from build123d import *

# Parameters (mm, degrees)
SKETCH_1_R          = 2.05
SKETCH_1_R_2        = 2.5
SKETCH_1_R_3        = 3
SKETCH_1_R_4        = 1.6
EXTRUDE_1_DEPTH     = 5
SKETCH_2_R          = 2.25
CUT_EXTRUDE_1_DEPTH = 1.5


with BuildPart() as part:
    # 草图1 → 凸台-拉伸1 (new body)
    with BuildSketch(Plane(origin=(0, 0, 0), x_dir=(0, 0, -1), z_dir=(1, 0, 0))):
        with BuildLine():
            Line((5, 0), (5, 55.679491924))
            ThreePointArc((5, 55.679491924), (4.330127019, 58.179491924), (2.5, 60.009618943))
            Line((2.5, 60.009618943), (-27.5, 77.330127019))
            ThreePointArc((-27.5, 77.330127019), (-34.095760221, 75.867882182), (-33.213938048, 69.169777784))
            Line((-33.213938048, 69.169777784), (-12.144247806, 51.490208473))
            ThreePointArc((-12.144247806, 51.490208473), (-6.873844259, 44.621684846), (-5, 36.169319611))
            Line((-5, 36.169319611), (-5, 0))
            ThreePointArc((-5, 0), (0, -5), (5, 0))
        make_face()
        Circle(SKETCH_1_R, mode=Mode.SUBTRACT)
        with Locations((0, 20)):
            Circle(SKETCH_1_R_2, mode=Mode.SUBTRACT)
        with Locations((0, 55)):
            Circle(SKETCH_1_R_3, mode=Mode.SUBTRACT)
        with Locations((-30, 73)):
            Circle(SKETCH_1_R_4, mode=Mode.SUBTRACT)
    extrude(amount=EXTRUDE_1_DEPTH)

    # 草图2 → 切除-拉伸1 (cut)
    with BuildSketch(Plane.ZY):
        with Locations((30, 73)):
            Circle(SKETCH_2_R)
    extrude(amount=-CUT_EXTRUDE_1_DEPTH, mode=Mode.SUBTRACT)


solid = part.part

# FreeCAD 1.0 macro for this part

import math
import FreeCAD as App
import Part
import Sketcher
from FreeCAD import Vector
Q = App.Units.Quantity

doc = App.newDocument("Part")
params = doc.addObject("Spreadsheet::Sheet", "Params")
for row, (alias, value) in enumerate([
    ("sketch1_diameter", "5 mm"),
    ("sketch1_diameter2", "6 mm"),
    ("sketch1_radius", "5 mm"),
    ("sketch1_radius2", "20 mm"),
    ("sketch1_diameter3", "4.1 mm"),
    ("pad1_length", "5 mm"),
    ("sketch2_diameter", "4.5 mm"),
    ("pocket1_length", "1.5 mm"),
], start=1):
    params.set(f"A{row}", alias)
    params.set(f"B{row}", "=" + value)
    params.setAlias(f"B{row}", alias)

body = doc.addObject("PartDesign::Body", "Body")

# Sketch on YZ plane
sketch1 = doc.addObject("Sketcher::SketchObject", "Sketch")
body.addObject(sketch1)
sketch1.AttachmentSupport = (doc.YZ_Plane, [""])
sketch1.MapMode = "FlatFace"
sketch1.addGeometry(Part.LineSegment(Vector(0, -5, 0), Vector(55.679492, -5, 0)), False)
sketch1.addGeometry(Part.ArcOfCircle(Part.Circle(Vector(55.679492, 0, 0), Vector(0, 0, 1), 5), math.radians(-90), math.radians(-30)), False)
sketch1.addGeometry(Part.LineSegment(Vector(60.009619, -2.5, 0), Vector(77.330127, 27.5, 0)), False)
sketch1.addGeometry(Part.ArcOfCircle(Part.Circle(Vector(73, 30, 0), Vector(0, 0, 1), 5), math.radians(-30), math.radians(140)), False)
sketch1.addGeometry(Part.LineSegment(Vector(69.169778, 33.213938, 0), Vector(51.490208, 12.144248, 0)), False)
sketch1.addGeometry(Part.ArcOfCircle(Part.Circle(Vector(36.16932, 25, 0), Vector(0, 0, 1), 20), math.radians(-90), math.radians(-40)), False)
sketch1.addGeometry(Part.LineSegment(Vector(36.16932, 5, 0), Vector(0, 5, 0)), False)
sketch1.addGeometry(Part.ArcOfCircle(Part.Circle(Vector(0, 0, 0), Vector(0, 0, 1), 5), math.radians(90), math.radians(270)), False)
sketch1.addGeometry(Part.Circle(Vector(0, 0, 0), Vector(0, 0, 1), 2.05), False)
sketch1.addGeometry(Part.Circle(Vector(20, 0, 0), Vector(0, 0, 1), 2.5), False)
sketch1.addGeometry(Part.Circle(Vector(73, 30, 0), Vector(0, 0, 1), 1.6), False)
sketch1.addGeometry(Part.Circle(Vector(55, 0, 0), Vector(0, 0, 1), 3), False)
sketch1.addConstraint(Sketcher.Constraint("Tangent", 0, 2, 1, 1))
sketch1.addConstraint(Sketcher.Constraint("Tangent", 1, 2, 2, 1))
sketch1.addConstraint(Sketcher.Constraint("Tangent", 2, 2, 3, 1))
sketch1.addConstraint(Sketcher.Constraint("Tangent", 3, 2, 4, 1))
sketch1.addConstraint(Sketcher.Constraint("Tangent", 4, 2, 5, 2))
sketch1.addConstraint(Sketcher.Constraint("Tangent", 5, 1, 6, 1))
sketch1.addConstraint(Sketcher.Constraint("Tangent", 6, 2, 7, 1))
sketch1.addConstraint(Sketcher.Constraint("Tangent", 7, 2, 0, 1))
sketch1.addConstraint(Sketcher.Constraint("Horizontal", 0))
sketch1.addConstraint(Sketcher.Constraint("Horizontal", 6))
sketch1.addConstraint(Sketcher.Constraint("Coincident", 7, 3, -1, 1))
sketch1.addConstraint(Sketcher.Constraint("Coincident", 8, 3, -1, 1))
sketch1.addConstraint(Sketcher.Constraint("Coincident", 10, 3, 3, 3))
sketch1.addConstraint(Sketcher.Constraint("Equal", 1, 3))
sketch1.addConstraint(Sketcher.Constraint("Equal", 3, 7))
sketch1.addConstraint(Sketcher.Constraint("PointOnObject", 9, 3, -1))
sketch1.addConstraint(Sketcher.Constraint("PointOnObject", 11, 3, -1))
sketch1.addConstraint(Sketcher.Constraint("Diameter", 9, 5.0))
sketch1.addConstraint(Sketcher.Constraint("Diameter", 11, 6.0))
sketch1.addConstraint(Sketcher.Constraint("Radius", 1, 5.0))
sketch1.addConstraint(Sketcher.Constraint("Radius", 5, 20.0))
sketch1.addConstraint(Sketcher.Constraint("Diameter", 8, 4.1))
sketch1.addConstraint(Sketcher.Constraint("Diameter", 10, 3.2))
sketch1.addConstraint(Sketcher.Constraint("Angle", 2, Q("60 deg")))
sketch1.addConstraint(Sketcher.Constraint("Angle", 4, Q("-130 deg")))
sketch1.addConstraint(Sketcher.Constraint("DistanceX", -1, 1, 3, 3, 73.0))
sketch1.addConstraint(Sketcher.Constraint("DistanceY", -1, 1, 3, 3, 30.0))
sketch1.addConstraint(Sketcher.Constraint("DistanceX", -1, 1, 9, 3, 20.0))
sketch1.addConstraint(Sketcher.Constraint("DistanceX", -1, 1, 11, 3, 55.0))
sketch1.setExpression("Constraints[17]", "Params.sketch1_diameter")
sketch1.setExpression("Constraints[18]", "Params.sketch1_diameter2")
sketch1.setExpression("Constraints[19]", "Params.sketch1_radius")
sketch1.setExpression("Constraints[20]", "Params.sketch1_radius2")
sketch1.setExpression("Constraints[21]", "Params.sketch1_diameter3")
pad1 = doc.addObject("PartDesign::Pad", "Pad")
body.addObject(pad1)
pad1.Profile = sketch1
pad1.setExpression("Length", "Params.pad1_length")

# Sketch on YZ plane
sketch2 = doc.addObject("Sketcher::SketchObject", "Sketch001")
body.addObject(sketch2)
sketch2.AttachmentSupport = (doc.YZ_Plane, [""])
sketch2.MapMode = "FlatFace"
sketch2.addGeometry(Part.Circle(Vector(73, 30, 0), Vector(0, 0, 1), 2.25), False)
sketch2.addConstraint(Sketcher.Constraint("Diameter", 0, 4.5))
sketch2.addConstraint(Sketcher.Constraint("DistanceX", -1, 1, 0, 3, 73.0))
sketch2.addConstraint(Sketcher.Constraint("DistanceY", -1, 1, 0, 3, 30.0))
sketch2.setExpression("Constraints[0]", "Params.sketch2_diameter")
pocket1 = doc.addObject("PartDesign::Pocket", "Pocket")
body.addObject(pocket1)
pocket1.Profile = sketch2
pocket1.setExpression("Length", "Params.pocket1_length")
pocket1.Reversed = True

doc.recompute()
